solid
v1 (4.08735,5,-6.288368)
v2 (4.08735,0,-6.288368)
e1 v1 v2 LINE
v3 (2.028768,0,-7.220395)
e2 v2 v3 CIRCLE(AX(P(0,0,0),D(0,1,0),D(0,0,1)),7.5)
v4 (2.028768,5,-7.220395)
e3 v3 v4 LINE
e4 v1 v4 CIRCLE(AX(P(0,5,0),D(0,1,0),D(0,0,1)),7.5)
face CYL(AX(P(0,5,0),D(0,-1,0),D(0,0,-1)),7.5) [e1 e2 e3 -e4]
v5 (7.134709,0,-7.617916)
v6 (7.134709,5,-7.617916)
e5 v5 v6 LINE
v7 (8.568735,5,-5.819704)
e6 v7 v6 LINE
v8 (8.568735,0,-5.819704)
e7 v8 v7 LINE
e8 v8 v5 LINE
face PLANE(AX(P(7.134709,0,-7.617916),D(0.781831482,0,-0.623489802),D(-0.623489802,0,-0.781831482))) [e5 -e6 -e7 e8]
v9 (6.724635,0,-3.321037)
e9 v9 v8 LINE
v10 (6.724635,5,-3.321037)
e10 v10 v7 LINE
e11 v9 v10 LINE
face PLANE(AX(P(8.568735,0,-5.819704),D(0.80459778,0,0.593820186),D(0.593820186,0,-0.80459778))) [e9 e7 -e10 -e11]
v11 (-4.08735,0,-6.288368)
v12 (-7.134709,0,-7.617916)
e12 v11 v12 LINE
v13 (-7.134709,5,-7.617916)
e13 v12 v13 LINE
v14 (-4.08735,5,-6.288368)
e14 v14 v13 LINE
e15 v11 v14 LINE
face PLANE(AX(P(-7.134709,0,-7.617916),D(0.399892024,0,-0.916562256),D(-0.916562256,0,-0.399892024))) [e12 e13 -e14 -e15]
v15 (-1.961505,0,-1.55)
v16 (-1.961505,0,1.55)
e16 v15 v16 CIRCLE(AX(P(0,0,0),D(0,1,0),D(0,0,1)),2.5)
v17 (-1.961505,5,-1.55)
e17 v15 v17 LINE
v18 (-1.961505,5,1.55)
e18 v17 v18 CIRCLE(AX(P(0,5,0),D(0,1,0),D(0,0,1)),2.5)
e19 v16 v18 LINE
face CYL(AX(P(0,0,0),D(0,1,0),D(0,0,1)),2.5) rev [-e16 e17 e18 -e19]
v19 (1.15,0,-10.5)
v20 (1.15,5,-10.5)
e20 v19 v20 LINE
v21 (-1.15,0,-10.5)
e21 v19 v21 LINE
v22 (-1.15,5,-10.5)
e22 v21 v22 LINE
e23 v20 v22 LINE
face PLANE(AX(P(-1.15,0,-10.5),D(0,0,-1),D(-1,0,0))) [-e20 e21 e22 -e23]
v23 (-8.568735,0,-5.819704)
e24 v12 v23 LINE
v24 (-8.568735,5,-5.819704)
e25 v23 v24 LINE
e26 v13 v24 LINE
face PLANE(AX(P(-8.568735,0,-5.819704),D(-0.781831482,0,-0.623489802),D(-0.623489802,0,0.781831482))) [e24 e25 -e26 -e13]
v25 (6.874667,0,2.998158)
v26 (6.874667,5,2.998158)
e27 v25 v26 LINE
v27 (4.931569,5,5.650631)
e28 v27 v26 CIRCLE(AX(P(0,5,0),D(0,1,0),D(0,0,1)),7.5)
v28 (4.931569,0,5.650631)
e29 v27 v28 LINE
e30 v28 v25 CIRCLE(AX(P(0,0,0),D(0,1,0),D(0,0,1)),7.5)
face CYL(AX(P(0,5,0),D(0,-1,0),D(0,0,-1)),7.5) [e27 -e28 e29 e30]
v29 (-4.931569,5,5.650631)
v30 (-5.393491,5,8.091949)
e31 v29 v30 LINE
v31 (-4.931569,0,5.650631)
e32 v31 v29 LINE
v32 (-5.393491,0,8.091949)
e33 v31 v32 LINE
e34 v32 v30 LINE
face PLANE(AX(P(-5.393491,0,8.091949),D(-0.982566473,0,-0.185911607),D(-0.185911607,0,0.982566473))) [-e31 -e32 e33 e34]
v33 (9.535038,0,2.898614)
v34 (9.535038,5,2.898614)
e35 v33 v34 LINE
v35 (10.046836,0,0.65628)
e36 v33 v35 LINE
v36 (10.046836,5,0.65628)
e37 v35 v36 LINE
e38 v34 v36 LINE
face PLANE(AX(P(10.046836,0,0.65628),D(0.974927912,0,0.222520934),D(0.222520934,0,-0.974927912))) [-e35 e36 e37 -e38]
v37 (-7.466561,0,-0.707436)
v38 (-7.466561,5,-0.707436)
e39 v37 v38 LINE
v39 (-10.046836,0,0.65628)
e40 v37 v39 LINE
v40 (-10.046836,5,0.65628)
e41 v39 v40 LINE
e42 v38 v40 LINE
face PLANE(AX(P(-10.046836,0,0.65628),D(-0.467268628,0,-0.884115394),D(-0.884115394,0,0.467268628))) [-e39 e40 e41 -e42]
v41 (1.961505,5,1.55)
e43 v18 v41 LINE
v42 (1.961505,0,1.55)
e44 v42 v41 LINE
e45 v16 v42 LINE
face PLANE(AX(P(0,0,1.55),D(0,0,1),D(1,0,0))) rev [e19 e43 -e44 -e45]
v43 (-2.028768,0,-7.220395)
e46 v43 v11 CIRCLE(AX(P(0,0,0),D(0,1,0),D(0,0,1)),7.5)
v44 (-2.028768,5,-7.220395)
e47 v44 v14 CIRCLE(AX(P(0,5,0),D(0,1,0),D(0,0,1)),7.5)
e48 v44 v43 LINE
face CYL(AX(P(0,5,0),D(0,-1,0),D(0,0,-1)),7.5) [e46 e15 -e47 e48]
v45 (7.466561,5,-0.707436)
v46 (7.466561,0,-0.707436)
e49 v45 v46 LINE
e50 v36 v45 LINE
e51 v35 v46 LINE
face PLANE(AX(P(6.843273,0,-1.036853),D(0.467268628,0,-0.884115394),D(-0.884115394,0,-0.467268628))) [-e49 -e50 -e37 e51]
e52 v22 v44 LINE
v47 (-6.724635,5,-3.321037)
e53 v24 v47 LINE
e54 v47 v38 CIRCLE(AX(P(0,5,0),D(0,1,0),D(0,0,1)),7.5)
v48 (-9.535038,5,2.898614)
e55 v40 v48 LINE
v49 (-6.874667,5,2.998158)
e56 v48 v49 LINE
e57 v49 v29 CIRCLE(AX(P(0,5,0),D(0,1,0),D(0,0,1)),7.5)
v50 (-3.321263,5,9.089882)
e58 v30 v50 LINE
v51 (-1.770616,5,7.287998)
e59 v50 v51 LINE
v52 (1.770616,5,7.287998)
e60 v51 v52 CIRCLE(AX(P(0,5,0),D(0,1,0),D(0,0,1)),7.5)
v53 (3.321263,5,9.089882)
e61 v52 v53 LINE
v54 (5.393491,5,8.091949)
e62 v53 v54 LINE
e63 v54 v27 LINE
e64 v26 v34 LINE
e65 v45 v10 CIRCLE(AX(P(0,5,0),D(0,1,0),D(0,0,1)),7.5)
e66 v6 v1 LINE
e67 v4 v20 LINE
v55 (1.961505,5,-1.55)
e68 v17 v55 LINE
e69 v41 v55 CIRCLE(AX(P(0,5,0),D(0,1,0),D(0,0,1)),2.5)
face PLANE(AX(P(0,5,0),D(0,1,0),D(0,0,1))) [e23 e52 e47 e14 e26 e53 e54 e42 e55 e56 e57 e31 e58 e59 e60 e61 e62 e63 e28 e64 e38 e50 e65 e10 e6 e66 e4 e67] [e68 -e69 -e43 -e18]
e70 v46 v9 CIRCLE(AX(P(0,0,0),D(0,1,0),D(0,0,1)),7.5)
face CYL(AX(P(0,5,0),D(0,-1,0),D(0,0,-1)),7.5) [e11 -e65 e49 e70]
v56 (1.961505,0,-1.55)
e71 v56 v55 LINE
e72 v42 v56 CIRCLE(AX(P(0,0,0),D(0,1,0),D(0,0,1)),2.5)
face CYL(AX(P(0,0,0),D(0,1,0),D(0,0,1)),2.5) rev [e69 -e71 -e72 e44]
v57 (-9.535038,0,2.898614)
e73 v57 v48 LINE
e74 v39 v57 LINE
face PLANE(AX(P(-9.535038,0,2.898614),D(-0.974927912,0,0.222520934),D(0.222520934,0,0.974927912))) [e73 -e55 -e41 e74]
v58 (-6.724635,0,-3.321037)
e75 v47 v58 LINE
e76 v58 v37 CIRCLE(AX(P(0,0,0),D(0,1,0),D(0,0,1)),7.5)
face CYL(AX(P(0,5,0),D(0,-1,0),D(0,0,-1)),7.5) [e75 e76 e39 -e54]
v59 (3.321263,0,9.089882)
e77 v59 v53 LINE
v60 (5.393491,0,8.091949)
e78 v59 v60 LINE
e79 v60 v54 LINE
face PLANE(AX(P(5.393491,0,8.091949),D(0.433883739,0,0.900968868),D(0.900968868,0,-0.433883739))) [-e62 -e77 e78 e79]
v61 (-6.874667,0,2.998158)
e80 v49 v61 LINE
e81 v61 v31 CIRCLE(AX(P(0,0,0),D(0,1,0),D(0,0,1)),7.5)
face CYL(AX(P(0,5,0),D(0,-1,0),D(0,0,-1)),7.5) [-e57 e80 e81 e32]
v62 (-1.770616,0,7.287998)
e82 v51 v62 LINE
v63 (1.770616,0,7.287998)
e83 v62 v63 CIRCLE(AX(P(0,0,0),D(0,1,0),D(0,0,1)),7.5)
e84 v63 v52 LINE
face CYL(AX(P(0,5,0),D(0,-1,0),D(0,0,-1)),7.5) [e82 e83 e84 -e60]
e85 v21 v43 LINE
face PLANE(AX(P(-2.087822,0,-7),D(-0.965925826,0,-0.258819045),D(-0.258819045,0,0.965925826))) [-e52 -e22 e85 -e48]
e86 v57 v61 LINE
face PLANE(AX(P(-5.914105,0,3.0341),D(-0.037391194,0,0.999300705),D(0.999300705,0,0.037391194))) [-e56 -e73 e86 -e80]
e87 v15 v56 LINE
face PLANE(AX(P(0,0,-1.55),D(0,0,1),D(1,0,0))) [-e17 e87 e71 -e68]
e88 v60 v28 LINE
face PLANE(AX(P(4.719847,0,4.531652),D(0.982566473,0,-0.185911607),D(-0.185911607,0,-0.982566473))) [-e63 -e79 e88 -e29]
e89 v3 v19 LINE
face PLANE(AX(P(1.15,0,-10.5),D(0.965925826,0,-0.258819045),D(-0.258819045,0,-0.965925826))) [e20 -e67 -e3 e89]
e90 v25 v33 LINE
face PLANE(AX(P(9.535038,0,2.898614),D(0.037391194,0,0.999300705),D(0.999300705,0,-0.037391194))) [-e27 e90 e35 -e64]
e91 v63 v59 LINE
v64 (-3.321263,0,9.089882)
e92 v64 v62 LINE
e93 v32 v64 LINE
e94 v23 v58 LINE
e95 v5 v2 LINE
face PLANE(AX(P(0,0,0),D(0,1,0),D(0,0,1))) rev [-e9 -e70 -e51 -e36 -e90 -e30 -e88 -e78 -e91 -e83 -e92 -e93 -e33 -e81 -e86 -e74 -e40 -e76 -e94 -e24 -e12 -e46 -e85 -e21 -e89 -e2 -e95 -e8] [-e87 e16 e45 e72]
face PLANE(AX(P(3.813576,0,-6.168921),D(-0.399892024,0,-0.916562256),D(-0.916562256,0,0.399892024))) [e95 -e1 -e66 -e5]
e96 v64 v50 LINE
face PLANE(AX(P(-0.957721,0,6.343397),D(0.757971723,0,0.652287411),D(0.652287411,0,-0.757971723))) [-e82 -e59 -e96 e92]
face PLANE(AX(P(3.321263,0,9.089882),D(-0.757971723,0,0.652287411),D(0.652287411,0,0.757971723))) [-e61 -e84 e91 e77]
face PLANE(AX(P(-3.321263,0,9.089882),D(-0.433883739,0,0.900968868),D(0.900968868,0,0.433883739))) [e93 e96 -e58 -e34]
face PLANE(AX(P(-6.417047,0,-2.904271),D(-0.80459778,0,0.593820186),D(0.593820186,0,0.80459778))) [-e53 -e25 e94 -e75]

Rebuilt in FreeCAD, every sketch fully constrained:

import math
import FreeCAD as App
import Part
import Sketcher
from FreeCAD import Vector
Q = App.Units.Quantity

doc = App.newDocument("Part")
params = doc.addObject("Spreadsheet::Sheet", "Params")
for row, (alias, value) in enumerate([
    ("sketch1_diameter", "15 mm"),
    ("pad1_length", "5 mm"),
    ("sketch2_width", "2.3 mm"),
    ("pad2_length", "5 mm"),
    ("sketch3_radius", "2.5 mm"),
    ("pocket1_length", "5 mm"),
], start=1):
    params.set(f"A{row}", alias)
    params.set(f"B{row}", "=" + value)
    params.setAlias(f"B{row}", alias)

body = doc.addObject("PartDesign::Body", "Body")

# Sketch on XZ plane
sketch1 = doc.addObject("Sketcher::SketchObject", "Sketch")
body.addObject(sketch1)
sketch1.AttachmentSupport = (doc.XZ_Plane, [""])
sketch1.MapMode = "FlatFace"
sketch1.addGeometry(Part.Circle(Vector(0, 0, 0), Vector(0, 0, 1), 8), False)
sketch1.addConstraint(Sketcher.Constraint("Coincident", 0, 3, -1, 1))
sketch1.addConstraint(Sketcher.Constraint("Diameter", 0, Q("15 mm")))
sketch1.setExpression("Constraints[1]", "Params.sketch1_diameter")
pad1 = doc.addObject("PartDesign::Pad", "Pad")
body.addObject(pad1)
pad1.Profile = sketch1
pad1.setExpression("Length", "Params.pad1_length")
pad1.Reversed = True

# Sketch on XZ plane
sketch2 = doc.addObject("Sketcher::SketchObject", "Sketch001")
body.addObject(sketch2)
sketch2.AttachmentSupport = (doc.XZ_Plane, [""])
sketch2.MapMode = "FlatFace"
sketch2.AttachmentOffset = App.Placement(Vector(0, 0, -5), App.Rotation())
sketch2.addGeometry(Part.LineSegment(Vector(1.1, -10.5, 0), Vector(-1.1, -10.5, 0)), False)
sketch2.addGeometry(Part.LineSegment(Vector(-1.1, -10.5, 0), Vector(-2.1, -7, 0)), False)
sketch2.addGeometry(Part.LineSegment(Vector(-2.1, -7, 0), Vector(2.1, -7, 0)), False)
sketch2.addGeometry(Part.LineSegment(Vector(2.1, -7, 0), Vector(1.1, -10.5, 0)), False)
sketch2.addConstraint(Sketcher.Constraint("Coincident", 0, 2, 1, 1))
sketch2.addConstraint(Sketcher.Constraint("Coincident", 1, 2, 2, 1))
sketch2.addConstraint(Sketcher.Constraint("Coincident", 2, 2, 3, 1))
sketch2.addConstraint(Sketcher.Constraint("Coincident", 3, 2, 0, 1))
sketch2.addConstraint(Sketcher.Constraint("Horizontal", 0))
sketch2.addConstraint(Sketcher.Constraint("Horizontal", 2))
sketch2.addConstraint(Sketcher.Constraint("Equal", 1, 3))
sketch2.addConstraint(Sketcher.Constraint("Angle", 1, Q("105 deg")))
sketch2.addConstraint(Sketcher.Constraint("DistanceX", 0, 2, 0, 1, Q("2.3 mm")))
sketch2.addConstraint(Sketcher.Constraint("DistanceY", 1, 2, -1, 1, Q("7 mm")))
sketch2.addConstraint(Sketcher.Constraint("DistanceY", 0, 2, -1, 1, Q("10.5 mm")))
sketch2.addConstraint(Sketcher.Constraint("DistanceX", 0, 2, -1, 1, Q("1.15 mm")))
sketch2.setExpression("Constraints[8]", "Params.sketch2_width")
pad2 = doc.addObject("PartDesign::Pad", "Pad001")
body.addObject(pad2)
pad2.Profile = sketch2
pad2.setExpression("Length", "Params.pad2_length")
doc.recompute()

datumline = doc.addObject("PartDesign::Line", "DatumLine")
body.addObject(datumline)
datumline.Placement = App.Placement(Vector(0, 0, -0.457271), App.Rotation(Vector(0, 0, 1), Vector(0, 1, 0)))
polarpattern = doc.addObject("PartDesign::PolarPattern", "PolarPattern")
body.addObject(polarpattern)
polarpattern.Originals = [pad2]
polarpattern.Axis = (datumline, [""])
polarpattern.Angle = 360
polarpattern.Occurrences = 7
body.Tip = polarpattern

# Sketch on XZ plane
sketch3 = doc.addObject("Sketcher::SketchObject", "Sketch002")
body.addObject(sketch3)
sketch3.AttachmentSupport = (doc.XZ_Plane, [""])
sketch3.MapMode = "FlatFace"
sketch3.AttachmentOffset = App.Placement(Vector(0, 0, -5), App.Rotation())
sketch3.addGeometry(Part.LineSegment(Vector(2, -1.6, 0), Vector(-2, -1.6, 0)), False)
sketch3.addGeometry(Part.ArcOfCircle(Part.Circle(Vector(0, 0, 0), Vector(0, 0, 1), 2.5), math.radians(142), math.radians(218)), False)
sketch3.addGeometry(Part.LineSegment(Vector(-2, 1.6, 0), Vector(2, 1.6, 0)), False)
sketch3.addGeometry(Part.ArcOfCircle(Part.Circle(Vector(0, 0, 0), Vector(0, 0, 1), 2.5), math.radians(0), math.radians(38)), False)
sketch3.addGeometry(Part.ArcOfCircle(Part.Circle(Vector(0, 0, 0), Vector(0, 0, 1), 2.5), math.radians(-38), math.radians(0)), False)
sketch3.addConstraint(Sketcher.Constraint("Coincident", 0, 2, 1, 2))
sketch3.addConstraint(Sketcher.Constraint("Coincident", 1, 1, 2, 1))
sketch3.addConstraint(Sketcher.Constraint("Coincident", 2, 2, 3, 2))
sketch3.addConstraint(Sketcher.Constraint("Tangent", 3, 1, 4, 2))
sketch3.addConstraint(Sketcher.Constraint("Coincident", 4, 1, 0, 1))
sketch3.addConstraint(Sketcher.Constraint("Horizontal", 0))
sketch3.addConstraint(Sketcher.Constraint("Horizontal", 2))
sketch3.addConstraint(Sketcher.Constraint("Coincident", 1, 3, -1, 1))
sketch3.addConstraint(Sketcher.Constraint("Coincident", 3, 3, -1, 1))
sketch3.addConstraint(Sketcher.Constraint("Equal", 1, 3))
sketch3.addConstraint(Sketcher.Constraint("Equal", 3, 4))
sketch3.addConstraint(Sketcher.Constraint("PointOnObject", 3, 1, -1))
sketch3.addConstraint(Sketcher.Constraint("Vertical", 0, 2, 1, 1))
sketch3.addConstraint(Sketcher.Constraint("Radius", 1, Q("2.5 mm")))
sketch3.addConstraint(Sketcher.Constraint("DistanceY", 0, 2, 1, 1, Q("3.1 mm")))
sketch3.setExpression("Constraints[13]", "Params.sketch3_radius")
pocket1 = doc.addObject("PartDesign::Pocket", "Pocket")
body.addObject(pocket1)
pocket1.Profile = sketch3
pocket1.setExpression("Length", "Params.pocket1_length")
pocket1.Reversed = True

doc.recompute()
